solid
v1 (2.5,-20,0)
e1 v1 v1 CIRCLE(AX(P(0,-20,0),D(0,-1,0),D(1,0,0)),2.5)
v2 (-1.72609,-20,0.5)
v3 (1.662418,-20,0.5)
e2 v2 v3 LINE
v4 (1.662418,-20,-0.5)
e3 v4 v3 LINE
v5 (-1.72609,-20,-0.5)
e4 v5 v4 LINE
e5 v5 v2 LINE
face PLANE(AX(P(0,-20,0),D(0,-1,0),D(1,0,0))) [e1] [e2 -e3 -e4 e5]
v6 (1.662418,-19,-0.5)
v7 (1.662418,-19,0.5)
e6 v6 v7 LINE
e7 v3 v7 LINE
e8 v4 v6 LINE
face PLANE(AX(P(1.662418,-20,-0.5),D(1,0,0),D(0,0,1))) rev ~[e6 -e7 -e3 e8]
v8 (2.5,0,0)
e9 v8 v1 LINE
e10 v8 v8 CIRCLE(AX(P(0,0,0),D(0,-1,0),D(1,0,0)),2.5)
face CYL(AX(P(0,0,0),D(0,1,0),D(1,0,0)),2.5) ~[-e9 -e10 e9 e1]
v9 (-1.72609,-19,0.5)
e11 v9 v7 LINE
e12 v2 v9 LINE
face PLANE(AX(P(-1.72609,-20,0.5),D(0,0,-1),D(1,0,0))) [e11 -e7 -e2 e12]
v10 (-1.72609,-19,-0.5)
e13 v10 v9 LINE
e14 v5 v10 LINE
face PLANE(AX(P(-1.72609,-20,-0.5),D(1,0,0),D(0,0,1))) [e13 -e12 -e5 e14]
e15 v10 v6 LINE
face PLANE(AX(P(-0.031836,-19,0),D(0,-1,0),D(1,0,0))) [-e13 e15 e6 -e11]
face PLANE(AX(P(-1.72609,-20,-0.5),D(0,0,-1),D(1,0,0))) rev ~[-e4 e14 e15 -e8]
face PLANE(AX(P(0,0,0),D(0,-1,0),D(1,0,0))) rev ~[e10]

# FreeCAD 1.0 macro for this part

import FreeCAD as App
import Part
import Sketcher
from FreeCAD import Vector


def add_polygon(sketch, points):
    """Adds a closed chain of lines whose ends are joined by coincident constraints."""
    first, n = sketch.GeometryCount, len(points)
    for a, b in zip(points, points[1:] + points[:1]):
        sketch.addGeometry(Part.LineSegment(App.Vector(*a, 0), App.Vector(*b, 0)), False)
    for i in range(n):
        sketch.addConstraint(Sketcher.Constraint("Coincident", first + i, 2, first + (i + 1) % n, 1))

doc = App.newDocument("Part")
body = doc.addObject("PartDesign::Body", "Body")

# Sketch on XZ plane
sketch1 = body.newObject("Sketcher::SketchObject", "Sketch")
sketch1.AttachmentSupport = (doc.getObject("XZ_Plane"), [""])
sketch1.MapMode = "FlatFace"
sketch1.addGeometry(Part.Circle(Vector(0, 0, 0), Vector(0, 0, 1), 2.5), False)
sketch1.addConstraint(Sketcher.Constraint("Coincident", 0, 3, -1, 1))
sketch1.addConstraint(Sketcher.Constraint("Diameter", 0, 5.0))
pad1 = body.newObject("PartDesign::Pad", "Pad")
pad1.Profile = sketch1
pad1.Length = 20

# Sketch on XZ plane
sketch2 = body.newObject("Sketcher::SketchObject", "Sketch001")
sketch2.AttachmentSupport = (doc.getObject("XZ_Plane"), [""])
sketch2.MapMode = "FlatFace"
sketch2.AttachmentOffset = App.Placement(Vector(0, 0, 20), App.Rotation())
add_polygon(sketch2, [(-1.7, 0.5), (-1.7, -0.5), (1.7, -0.5), (1.7, 0.5)])  # lines 0-3
sketch2.addConstraint(Sketcher.Constraint("Vertical", 0))
sketch2.addConstraint(Sketcher.Constraint("Horizontal", 1))
sketch2.addConstraint(Sketcher.Constraint("Vertical", 2))
sketch2.addConstraint(Sketcher.Constraint("Horizontal", 3))
sketch2.addConstraint(Sketcher.Constraint("DistanceY", 0, 2, 0, 1, 1.0))
sketch2.addConstraint(Sketcher.Constraint("DistanceY", 0, 2, -1, 1, 0.5))
sketch2.addConstraint(Sketcher.Constraint("DistanceX", 1, 1, 1, 2, 3.388507))
sketch2.addConstraint(Sketcher.Constraint("DistanceX", 0, 2, -1, 1, 1.72609))
pocket1 = body.newObject("PartDesign::Pocket", "Pocket")
pocket1.Profile = sketch2
pocket1.Length = 1

doc.recompute()
